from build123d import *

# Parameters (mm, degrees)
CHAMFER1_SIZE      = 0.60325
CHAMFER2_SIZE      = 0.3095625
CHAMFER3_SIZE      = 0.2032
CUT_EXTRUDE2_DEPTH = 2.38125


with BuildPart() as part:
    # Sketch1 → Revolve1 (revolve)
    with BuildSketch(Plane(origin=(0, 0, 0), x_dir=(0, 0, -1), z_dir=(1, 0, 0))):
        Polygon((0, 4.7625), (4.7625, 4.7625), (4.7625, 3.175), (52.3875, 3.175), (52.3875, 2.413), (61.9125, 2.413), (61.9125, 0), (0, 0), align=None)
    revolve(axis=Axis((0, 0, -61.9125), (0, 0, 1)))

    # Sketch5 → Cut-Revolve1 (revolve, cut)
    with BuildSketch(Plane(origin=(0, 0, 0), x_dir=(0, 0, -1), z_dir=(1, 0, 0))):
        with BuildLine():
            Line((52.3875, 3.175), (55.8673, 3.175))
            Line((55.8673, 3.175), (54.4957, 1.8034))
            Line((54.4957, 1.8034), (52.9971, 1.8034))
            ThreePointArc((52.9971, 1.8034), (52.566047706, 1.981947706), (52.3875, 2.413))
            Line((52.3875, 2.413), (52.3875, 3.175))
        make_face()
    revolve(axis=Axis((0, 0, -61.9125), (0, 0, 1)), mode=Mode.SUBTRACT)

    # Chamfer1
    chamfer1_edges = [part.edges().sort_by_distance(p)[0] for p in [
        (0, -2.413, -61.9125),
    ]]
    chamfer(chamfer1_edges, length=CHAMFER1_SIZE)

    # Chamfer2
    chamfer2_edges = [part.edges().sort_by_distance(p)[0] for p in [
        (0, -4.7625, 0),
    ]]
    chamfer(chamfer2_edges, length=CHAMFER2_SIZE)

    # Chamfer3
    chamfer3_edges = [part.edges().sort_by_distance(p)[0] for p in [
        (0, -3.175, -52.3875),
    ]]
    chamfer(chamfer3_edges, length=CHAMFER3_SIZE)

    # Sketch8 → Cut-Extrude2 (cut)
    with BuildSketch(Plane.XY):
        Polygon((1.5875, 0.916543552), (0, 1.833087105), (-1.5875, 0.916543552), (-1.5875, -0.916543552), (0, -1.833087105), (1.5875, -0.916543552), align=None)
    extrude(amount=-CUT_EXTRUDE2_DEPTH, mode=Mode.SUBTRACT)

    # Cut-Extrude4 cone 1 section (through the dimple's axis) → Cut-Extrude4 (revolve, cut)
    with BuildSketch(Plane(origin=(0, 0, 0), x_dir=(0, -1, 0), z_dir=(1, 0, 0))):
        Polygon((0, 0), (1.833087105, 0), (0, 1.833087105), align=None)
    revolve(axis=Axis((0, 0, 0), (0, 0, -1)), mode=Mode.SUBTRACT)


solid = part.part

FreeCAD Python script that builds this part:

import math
import FreeCAD as App
import Part
import Sketcher

V = App.Vector
Q = App.Units.Quantity


def edges_at(feature, points):
    """Names of the edges that pass closest to the given points."""
    edges = feature.Shape.Edges
    near = lambda p: min(range(len(edges)), key=lambda i: edges[i].distToShape(Part.Vertex(*p))[0])
    return sorted({f"Edge{near(p) + 1}" for p in points})

doc = App.newDocument("Part")
body = doc.addObject("PartDesign::Body", "Body")

# Sketch on YZ plane
sketch1 = body.newObject("Sketcher::SketchObject", "Sketch")
sketch1.AttachmentSupport = (doc.getObject("YZ_Plane"), [""])
sketch1.MapMode = "FlatFace"
sketch1.addGeometry([
    Part.LineSegment(V(4.8, -4.8, 0), V(4.8, 0, 0)),  # 0
    Part.LineSegment(V(4.8, 0, 0), V(0, 0, 0)),  # 1
    Part.LineSegment(V(0, 0, 0), V(0, -61.9, 0)),  # 2
    Part.LineSegment(V(0, -61.9, 0), V(2.4, -61.9, 0)),  # 3
    Part.LineSegment(V(2.4, -61.9, 0), V(2.4, -52.4, 0)),  # 4
    Part.LineSegment(V(2.4, -52.4, 0), V(3.2, -52.4, 0)),  # 5
    Part.LineSegment(V(3.2, -52.4, 0), V(3.2, -4.8, 0)),  # 6
    Part.LineSegment(V(3.2, -4.8, 0), V(4.8, -4.8, 0)),  # 7
], False)
sketch1.addConstraint([
    Sketcher.Constraint("Coincident", 0, 2, 1, 1),
    Sketcher.Constraint("Coincident", 1, 2, 2, 1),
    Sketcher.Constraint("Coincident", 2, 2, 3, 1),
    Sketcher.Constraint("Coincident", 3, 2, 4, 1),
    Sketcher.Constraint("Coincident", 4, 2, 5, 1),
    Sketcher.Constraint("Coincident", 5, 2, 6, 1),
    Sketcher.Constraint("Coincident", 6, 2, 7, 1),
    Sketcher.Constraint("Coincident", 7, 2, 0, 1),
    Sketcher.Constraint("Vertical", 0),
    Sketcher.Constraint("Horizontal", 1),
    Sketcher.Constraint("Vertical", 2),
    Sketcher.Constraint("Horizontal", 3),
    Sketcher.Constraint("Vertical", 4),
    Sketcher.Constraint("Horizontal", 5),
    Sketcher.Constraint("Vertical", 6),
    Sketcher.Constraint("Horizontal", 7),
    Sketcher.Constraint("Coincident", 1, 2, -1, 1),
    Sketcher.Constraint("Equal", 1, 0),
    Sketcher.Constraint("DistanceX", 5, 1, 5, 2, Q("0.03 in")),
    Sketcher.Constraint("DistanceX", 1, 2, 1, 1, Q("0.1875 in")),
    Sketcher.Constraint("DistanceX", 3, 1, 3, 2, Q("0.095 in")),
    Sketcher.Constraint("DistanceY", 2, 2, 2, 1, Q("2.4375 in")),
    Sketcher.Constraint("DistanceY", 4, 1, 4, 2, Q("0.375 in")),
])
revolution = body.newObject("PartDesign::Revolution", "Revolution")
revolution.Profile = sketch1
revolution.ReferenceAxis = (sketch1, ["V_Axis"])
revolution.Angle = 360

# Sketch on YZ plane
sketch2 = body.newObject("Sketcher::SketchObject", "Sketch001")
sketch2.AttachmentSupport = (doc.getObject("YZ_Plane"), [""])
sketch2.MapMode = "FlatFace"
sketch2.addGeometry([
    Part.LineSegment(V(3.2, -55.9, 0), V(3.2, -52.4, 0)),  # 0
    Part.LineSegment(V(3.2, -52.4, 0), V(2.4, -52.4, 0)),  # 1
    Part.ArcOfCircle(Part.Circle(V(2.4, -53, 0), V(0, 0, 1), 0.6), math.radians(90), math.radians(180)),  # 2
    Part.LineSegment(V(1.8, -53, 0), V(1.8, -54.5, 0)),  # 3
    Part.LineSegment(V(1.8, -54.5, 0), V(3.2, -55.9, 0)),  # 4
], False)
sketch2.addConstraint([
    Sketcher.Constraint("Coincident", 0, 2, 1, 1),
    Sketcher.Constraint("Tangent", 1, 2, 2, 1),
    Sketcher.Constraint("Tangent", 2, 2, 3, 1),
    Sketcher.Constraint("Coincident", 3, 2, 4, 1),
    Sketcher.Constraint("Coincident", 4, 2, 0, 1),
    Sketcher.Constraint("Vertical", 0),
    Sketcher.Constraint("Horizontal", 1),
    Sketcher.Constraint("Vertical", 3),
    Sketcher.Constraint("Angle", 4, Q("-45 deg")),
    Sketcher.Constraint("Radius", 2, Q("0.024 in")),
    Sketcher.Constraint("DistanceX", 1, 2, 1, 1, Q("0.03 in")),
    Sketcher.Constraint("DistanceY", 0, 1, 0, 2, Q("0.137 in")),
    Sketcher.Constraint("DistanceX", -1, 1, 2, 3, Q("0.095 in")),
    Sketcher.Constraint("DistanceY", 0, 2, -1, 1, Q("2.0625 in")),
])
groove = body.newObject("PartDesign::Groove", "Groove")
groove.Profile = sketch2
groove.ReferenceAxis = (sketch2, ["V_Axis"])
groove.Angle = 360
doc.recompute()

chamfer = body.newObject("PartDesign::Chamfer", "Chamfer")
chamfer.Base = (groove, edges_at(groove, [(0, -2.413, -61.913)]))
chamfer.Size = 0.60325
doc.recompute()

chamfer2 = body.newObject("PartDesign::Chamfer", "Chamfer001")
chamfer2.Base = (chamfer, edges_at(chamfer, [(0, -4.763, 0)]))
chamfer2.Size = 0.309563
doc.recompute()

chamfer3 = body.newObject("PartDesign::Chamfer", "Chamfer002")
chamfer3.Base = (chamfer2, edges_at(chamfer2, [(0, -3.175, -52.388)]))
chamfer3.Size = Q("0.008 in")

# Sketch on XY plane
sketch3 = body.newObject("Sketcher::SketchObject", "Sketch002")
sketch3.AttachmentSupport = (doc.getObject("XY_Plane"), [""])
sketch3.MapMode = "FlatFace"
sketch3.addGeometry([
    Part.LineSegment(V(1.6, 0.9, 0), V(0, 1.8, 0)),  # 0
    Part.LineSegment(V(0, 1.8, 0), V(-1.6, 0.9, 0)),  # 1
    Part.LineSegment(V(-1.6, 0.9, 0), V(-1.6, -0.9, 0)),  # 2
    Part.LineSegment(V(-1.6, -0.9, 0), V(0, -1.8, 0)),  # 3
    Part.LineSegment(V(0, -1.8, 0), V(1.6, -0.9, 0)),  # 4
    Part.LineSegment(V(1.6, -0.9, 0), V(1.6, 0.9, 0)),  # 5
], False)
sketch3.addConstraint([
    Sketcher.Constraint("Coincident", 0, 2, 1, 1),
    Sketcher.Constraint("Coincident", 1, 2, 2, 1),
    Sketcher.Constraint("Coincident", 2, 2, 3, 1),
    Sketcher.Constraint("Coincident", 3, 2, 4, 1),
    Sketcher.Constraint("Coincident", 4, 2, 5, 1),
    Sketcher.Constraint("Coincident", 5, 2, 0, 1),
    Sketcher.Constraint("Vertical", 2),
    Sketcher.Constraint("Vertical", 5),
    Sketcher.Constraint("Symmetric", 0, 2, 3, 2, -1, 1),
    Sketcher.Constraint("Symmetric", 1, 2, 4, 2, -1, 1),
    Sketcher.Constraint("PointOnObject", 0, 2, -2),
    Sketcher.Constraint("Parallel", 0, 3),
    Sketcher.Constraint("Horizontal", 2, 2, 4, 2),
    Sketcher.Constraint("Angle", 0, Q("150 deg")),
    Sketcher.Constraint("DistanceX", 1, 2, -1, 1, Q("0.0625 in")),
    Sketcher.Constraint("DistanceY", 2, 2, 2, 1, Q("1.833087 mm")),
])
pocket1 = body.newObject("PartDesign::Pocket", "Pocket")
pocket1.Profile = sketch3
pocket1.Length = Q("0.09375 in")

# Sketch on YZ plane
sketch4 = body.newObject("Sketcher::SketchObject", "Sketch003")
sketch4.AttachmentSupport = (doc.getObject("YZ_Plane"), [""])
sketch4.MapMode = "FlatFace"
sketch4.addGeometry([
    Part.LineSegment(V(0, 0, 0), V(-1.8, 0, 0)),
    Part.LineSegment(V(-1.8, 0, 0), V(0, -1.8, 0)),
    Part.LineSegment(V(0, -1.8, 0), V(0, 0, 0)),
], False)
sketch4.addConstraint([
    Sketcher.Constraint("Coincident", 0, 2, 1, 1),
    Sketcher.Constraint("Coincident", 1, 2, 2, 1),
    Sketcher.Constraint("Coincident", 2, 2, 0, 1),
    Sketcher.Constraint("Horizontal", 0),
    Sketcher.Constraint("Vertical", 2),
    Sketcher.Constraint("Coincident", 2, 2, -1, 1),
    Sketcher.Constraint("Equal", 0, 2),
    Sketcher.Constraint("DistanceX", 0, 2, 0, 1, Q("1.833087 mm")),
])
groove2 = body.newObject("PartDesign::Groove", "Groove001")
groove2.Profile = sketch4
groove2.ReferenceAxis = (sketch4, ["V_Axis"])
groove2.Angle = 360

doc.recompute()
